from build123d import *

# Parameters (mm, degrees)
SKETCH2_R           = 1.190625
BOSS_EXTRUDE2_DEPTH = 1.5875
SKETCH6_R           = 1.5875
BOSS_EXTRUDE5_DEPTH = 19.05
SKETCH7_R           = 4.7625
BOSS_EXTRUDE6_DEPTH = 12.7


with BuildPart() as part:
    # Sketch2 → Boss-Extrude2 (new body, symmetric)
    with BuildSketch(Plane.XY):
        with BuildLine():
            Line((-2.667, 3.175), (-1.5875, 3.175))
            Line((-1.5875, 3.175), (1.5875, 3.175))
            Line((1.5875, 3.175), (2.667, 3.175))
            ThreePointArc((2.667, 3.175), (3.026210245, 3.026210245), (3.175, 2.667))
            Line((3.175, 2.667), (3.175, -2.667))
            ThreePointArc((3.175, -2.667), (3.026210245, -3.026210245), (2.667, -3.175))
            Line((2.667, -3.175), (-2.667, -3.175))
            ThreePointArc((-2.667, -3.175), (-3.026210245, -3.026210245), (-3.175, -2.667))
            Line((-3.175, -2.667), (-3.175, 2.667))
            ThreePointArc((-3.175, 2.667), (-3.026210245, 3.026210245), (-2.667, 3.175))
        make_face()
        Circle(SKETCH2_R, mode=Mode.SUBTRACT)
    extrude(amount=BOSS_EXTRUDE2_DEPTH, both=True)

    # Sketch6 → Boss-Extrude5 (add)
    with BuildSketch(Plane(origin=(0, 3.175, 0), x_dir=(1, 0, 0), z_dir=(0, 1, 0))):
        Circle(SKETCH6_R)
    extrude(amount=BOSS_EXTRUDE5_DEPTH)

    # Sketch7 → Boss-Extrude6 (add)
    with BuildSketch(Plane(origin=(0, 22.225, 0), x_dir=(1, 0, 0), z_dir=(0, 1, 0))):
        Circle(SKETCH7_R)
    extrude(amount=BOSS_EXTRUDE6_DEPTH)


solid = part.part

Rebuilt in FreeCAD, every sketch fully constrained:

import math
import FreeCAD as App
import Part
import Sketcher
from FreeCAD import Vector
Q = App.Units.Quantity

doc = App.newDocument("Part")
body = doc.addObject("PartDesign::Body", "Body")

# Sketch on XY plane
sketch1 = body.newObject("Sketcher::SketchObject", "Sketch")
sketch1.AttachmentSupport = (doc.getObject("XY_Plane"), [""])
sketch1.MapMode = "FlatFace"
sketch1.addGeometry([
    Part.LineSegment(Vector(2.667, 3.175, 0), Vector(-2.667, 3.175, 0)),  # 0
    Part.ArcOfCircle(Part.Circle(Vector(-2.667, 2.667, 0), Vector(0, 0, 1), 0.508), math.radians(90), math.radians(180)),  # 1
    Part.LineSegment(Vector(-3.175, 2.667, 0), Vector(-3.175, -2.667, 0)),  # 2
    Part.ArcOfCircle(Part.Circle(Vector(-2.667, -2.667, 0), Vector(0, 0, 1), 0.508), math.radians(180), math.radians(270)),  # 3
    Part.LineSegment(Vector(-2.667, -3.175, 0), Vector(2.667, -3.175, 0)),  # 4
    Part.ArcOfCircle(Part.Circle(Vector(2.667, -2.667, 0), Vector(0, 0, 1), 0.508), math.radians(-90), math.radians(0)),  # 5
    Part.LineSegment(Vector(3.175, -2.667, 0), Vector(3.175, 2.667, 0)),  # 6
    Part.ArcOfCircle(Part.Circle(Vector(2.667, 2.667, 0), Vector(0, 0, 1), 0.508), math.radians(0), math.radians(90)),  # 7
    Part.Circle(Vector(0, 0, 0), Vector(0, 0, 1), 1.190625),  # 8
], False)
sketch1.addConstraint([
    Sketcher.Constraint("Tangent", 0, 2, 1, 1),
    Sketcher.Constraint("Tangent", 1, 2, 2, 1),
    Sketcher.Constraint("Tangent", 2, 2, 3, 1),
    Sketcher.Constraint("Tangent", 3, 2, 4, 1),
    Sketcher.Constraint("Tangent", 4, 2, 5, 1),
    Sketcher.Constraint("Tangent", 5, 2, 6, 1),
    Sketcher.Constraint("Tangent", 6, 2, 7, 1),
    Sketcher.Constraint("Tangent", 7, 2, 0, 1),
    Sketcher.Constraint("Horizontal", 0),
    Sketcher.Constraint("Vertical", 2),
    Sketcher.Constraint("Horizontal", 4),
    Sketcher.Constraint("Vertical", 6),
    Sketcher.Constraint("Coincident", 8, 3, -1, 1),
    Sketcher.Constraint("Equal", 1, 3),
    Sketcher.Constraint("Equal", 3, 5),
    Sketcher.Constraint("Equal", 5, 7),
    Sketcher.Constraint("Symmetric", 1, 3, 5, 3, -1, 1),
    Sketcher.Constraint("Equal", 4, 2),
    Sketcher.Constraint("Radius", 1, Q("0.02 in")),
    Sketcher.Constraint("Diameter", 8, Q("0.09375 in")),
    Sketcher.Constraint("DistanceX", 0, 2, 0, 1, Q("0.21 in")),
])
pad1 = body.newObject("PartDesign::Pad", "Pad")
pad1.Profile = sketch1
pad1.Length = Q("0.125 in")
pad1.Midplane = True

# Sketch on XZ plane
sketch2 = body.newObject("Sketcher::SketchObject", "Sketch001")
sketch2.AttachmentSupport = (doc.getObject("XZ_Plane"), [""])
sketch2.MapMode = "FlatFace"
sketch2.AttachmentOffset = App.Placement(Vector(0, 0, -0.125 * 25.4), App.Rotation())
sketch2.addGeometry(Part.Circle(Vector(0, 0, 0), Vector(0, 0, 1), 1.5875), False)
sketch2.addConstraint([
    Sketcher.Constraint("Coincident", 0, 3, -1, 1),
    Sketcher.Constraint("Diameter", 0, Q("0.125 in")),
])
pad2 = body.newObject("PartDesign::Pad", "Pad001")
pad2.Profile = sketch2
pad2.Length = Q("0.75 in")
pad2.Reversed = True

# Sketch on XZ plane
sketch3 = body.newObject("Sketcher::SketchObject", "Sketch002")
sketch3.AttachmentSupport = (doc.getObject("XZ_Plane"), [""])
sketch3.MapMode = "FlatFace"
sketch3.AttachmentOffset = App.Placement(Vector(0, 0, -0.875 * 25.4), App.Rotation())
sketch3.addGeometry(Part.Circle(Vector(0, 0, 0), Vector(0, 0, 1), 4.7625), False)
sketch3.addConstraint([
    Sketcher.Constraint("Coincident", 0, 3, -1, 1),
    Sketcher.Constraint("Diameter", 0, Q("0.375 in")),
])
pad3 = body.newObject("PartDesign::Pad", "Pad002")
pad3.Profile = sketch3
pad3.Length = Q("0.5 in")
pad3.Reversed = True

doc.recompute()
